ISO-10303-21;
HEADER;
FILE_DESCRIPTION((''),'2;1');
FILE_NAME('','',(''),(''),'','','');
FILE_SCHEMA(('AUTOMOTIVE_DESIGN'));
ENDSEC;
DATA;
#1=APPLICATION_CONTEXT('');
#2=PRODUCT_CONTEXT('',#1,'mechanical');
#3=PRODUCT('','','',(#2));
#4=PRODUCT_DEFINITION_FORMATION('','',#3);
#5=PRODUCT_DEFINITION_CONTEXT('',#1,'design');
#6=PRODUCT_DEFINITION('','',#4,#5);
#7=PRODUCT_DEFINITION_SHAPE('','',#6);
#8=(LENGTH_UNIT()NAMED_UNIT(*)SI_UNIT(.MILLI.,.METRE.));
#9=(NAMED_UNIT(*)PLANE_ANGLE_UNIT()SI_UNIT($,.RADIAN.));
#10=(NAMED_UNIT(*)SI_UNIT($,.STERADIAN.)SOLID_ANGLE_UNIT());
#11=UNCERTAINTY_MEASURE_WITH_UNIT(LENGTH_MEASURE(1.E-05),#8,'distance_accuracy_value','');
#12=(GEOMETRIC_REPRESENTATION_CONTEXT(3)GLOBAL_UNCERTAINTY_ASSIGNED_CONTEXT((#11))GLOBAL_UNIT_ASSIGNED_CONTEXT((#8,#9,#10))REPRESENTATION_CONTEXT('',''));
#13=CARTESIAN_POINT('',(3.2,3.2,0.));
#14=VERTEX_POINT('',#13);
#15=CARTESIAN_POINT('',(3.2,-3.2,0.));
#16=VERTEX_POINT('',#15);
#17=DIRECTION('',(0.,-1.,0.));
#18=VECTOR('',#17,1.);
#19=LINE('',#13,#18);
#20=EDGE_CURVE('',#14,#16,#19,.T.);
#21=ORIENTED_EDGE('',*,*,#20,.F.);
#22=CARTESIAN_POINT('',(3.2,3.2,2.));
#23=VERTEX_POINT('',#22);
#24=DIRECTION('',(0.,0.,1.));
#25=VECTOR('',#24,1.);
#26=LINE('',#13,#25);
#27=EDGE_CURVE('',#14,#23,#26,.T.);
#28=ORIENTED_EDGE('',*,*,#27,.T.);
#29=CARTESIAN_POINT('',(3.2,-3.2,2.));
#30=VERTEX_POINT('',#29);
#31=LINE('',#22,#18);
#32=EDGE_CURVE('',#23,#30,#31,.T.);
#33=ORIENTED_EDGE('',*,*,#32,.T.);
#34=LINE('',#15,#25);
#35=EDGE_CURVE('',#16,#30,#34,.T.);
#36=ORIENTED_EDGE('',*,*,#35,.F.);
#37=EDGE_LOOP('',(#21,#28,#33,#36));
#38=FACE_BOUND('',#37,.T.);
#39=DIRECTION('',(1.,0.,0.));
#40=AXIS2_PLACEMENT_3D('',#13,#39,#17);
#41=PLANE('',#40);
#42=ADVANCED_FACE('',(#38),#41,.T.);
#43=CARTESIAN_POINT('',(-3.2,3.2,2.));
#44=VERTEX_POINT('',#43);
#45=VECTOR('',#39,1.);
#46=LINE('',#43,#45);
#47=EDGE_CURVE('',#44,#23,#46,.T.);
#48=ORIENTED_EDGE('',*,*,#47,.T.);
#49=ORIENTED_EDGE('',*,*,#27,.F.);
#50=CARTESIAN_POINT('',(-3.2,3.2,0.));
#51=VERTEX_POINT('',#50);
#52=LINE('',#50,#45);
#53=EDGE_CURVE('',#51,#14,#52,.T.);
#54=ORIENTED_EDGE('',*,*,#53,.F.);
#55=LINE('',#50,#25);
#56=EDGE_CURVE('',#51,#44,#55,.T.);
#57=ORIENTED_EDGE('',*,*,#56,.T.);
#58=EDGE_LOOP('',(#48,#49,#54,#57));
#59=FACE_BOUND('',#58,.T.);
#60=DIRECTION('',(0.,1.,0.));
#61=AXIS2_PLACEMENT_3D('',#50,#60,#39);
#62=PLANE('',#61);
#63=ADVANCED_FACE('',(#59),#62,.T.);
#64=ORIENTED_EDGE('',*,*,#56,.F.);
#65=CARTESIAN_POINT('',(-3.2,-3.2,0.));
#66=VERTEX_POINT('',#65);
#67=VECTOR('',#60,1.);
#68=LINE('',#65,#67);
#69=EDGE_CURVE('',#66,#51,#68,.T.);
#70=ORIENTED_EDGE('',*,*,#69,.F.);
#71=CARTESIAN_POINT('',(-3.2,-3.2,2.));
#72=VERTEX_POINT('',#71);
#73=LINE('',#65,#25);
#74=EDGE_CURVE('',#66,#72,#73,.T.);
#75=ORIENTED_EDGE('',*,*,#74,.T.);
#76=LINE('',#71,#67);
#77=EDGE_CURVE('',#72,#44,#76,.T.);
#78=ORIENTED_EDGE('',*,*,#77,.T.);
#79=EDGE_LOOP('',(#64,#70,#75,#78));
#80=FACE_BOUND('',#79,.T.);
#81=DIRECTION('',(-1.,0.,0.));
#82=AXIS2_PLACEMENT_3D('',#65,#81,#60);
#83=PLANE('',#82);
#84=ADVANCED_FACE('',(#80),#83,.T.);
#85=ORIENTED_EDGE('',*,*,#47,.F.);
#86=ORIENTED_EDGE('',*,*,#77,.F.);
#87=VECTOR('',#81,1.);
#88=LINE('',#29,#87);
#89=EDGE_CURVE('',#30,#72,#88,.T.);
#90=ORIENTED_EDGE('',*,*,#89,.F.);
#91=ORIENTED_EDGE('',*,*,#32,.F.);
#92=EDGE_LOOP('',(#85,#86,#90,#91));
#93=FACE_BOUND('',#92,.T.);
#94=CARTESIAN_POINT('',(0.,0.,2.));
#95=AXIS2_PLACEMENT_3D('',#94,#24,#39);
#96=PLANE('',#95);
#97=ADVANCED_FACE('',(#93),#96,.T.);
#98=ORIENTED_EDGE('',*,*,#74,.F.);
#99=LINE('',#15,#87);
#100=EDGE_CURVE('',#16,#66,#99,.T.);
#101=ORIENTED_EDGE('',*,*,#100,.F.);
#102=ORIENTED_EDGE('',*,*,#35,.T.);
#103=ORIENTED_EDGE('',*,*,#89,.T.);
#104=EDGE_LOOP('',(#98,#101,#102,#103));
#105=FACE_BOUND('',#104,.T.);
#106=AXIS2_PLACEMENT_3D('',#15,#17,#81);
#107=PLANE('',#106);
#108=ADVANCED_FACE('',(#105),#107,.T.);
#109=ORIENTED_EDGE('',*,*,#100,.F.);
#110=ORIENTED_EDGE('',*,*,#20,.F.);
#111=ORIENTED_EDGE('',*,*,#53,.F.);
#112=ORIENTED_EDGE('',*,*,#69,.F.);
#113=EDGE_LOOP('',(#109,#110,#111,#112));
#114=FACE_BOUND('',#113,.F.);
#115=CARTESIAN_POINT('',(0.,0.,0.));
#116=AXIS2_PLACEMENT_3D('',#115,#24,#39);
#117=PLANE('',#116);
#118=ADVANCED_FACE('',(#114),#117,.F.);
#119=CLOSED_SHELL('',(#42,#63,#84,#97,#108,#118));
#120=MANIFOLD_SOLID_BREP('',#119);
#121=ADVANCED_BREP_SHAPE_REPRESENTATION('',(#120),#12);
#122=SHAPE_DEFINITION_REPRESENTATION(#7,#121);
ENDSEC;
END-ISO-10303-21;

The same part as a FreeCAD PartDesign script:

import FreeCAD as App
import Part
import Sketcher


def add_polygon(sketch, points):
    """Adds a closed chain of lines whose ends are joined by coincident constraints."""
    first, n = sketch.GeometryCount, len(points)
    for a, b in zip(points, points[1:] + points[:1]):
        sketch.addGeometry(Part.LineSegment(App.Vector(*a, 0), App.Vector(*b, 0)), False)
    for i in range(n):
        sketch.addConstraint(Sketcher.Constraint("Coincident", first + i, 2, first + (i + 1) % n, 1))

doc = App.newDocument("Part")
body = doc.addObject("PartDesign::Body", "Body")

# Sketch on XY plane
sketch1 = body.newObject("Sketcher::SketchObject", "Sketch")
sketch1.AttachmentSupport = (doc.getObject("XY_Plane"), [""])
sketch1.MapMode = "FlatFace"
add_polygon(sketch1, [(-3, -3), (3, -3), (3, 3), (-3, 3)])  # lines 0-3
sketch1.addConstraint([
    Sketcher.Constraint("Horizontal", 0),
    Sketcher.Constraint("Vertical", 1),
    Sketcher.Constraint("Horizontal", 2),
    Sketcher.Constraint("Vertical", 3),
    Sketcher.Constraint("Symmetric", 0, 2, 2, 2, -1, 1),
    Sketcher.Constraint("Equal", 2, 1),
    Sketcher.Constraint("DistanceX", 0, 1, 0, 2, 6.4),
])
pad1 = body.newObject("PartDesign::Pad", "Pad")
pad1.Profile = sketch1
pad1.Length = 2

doc.recompute()
